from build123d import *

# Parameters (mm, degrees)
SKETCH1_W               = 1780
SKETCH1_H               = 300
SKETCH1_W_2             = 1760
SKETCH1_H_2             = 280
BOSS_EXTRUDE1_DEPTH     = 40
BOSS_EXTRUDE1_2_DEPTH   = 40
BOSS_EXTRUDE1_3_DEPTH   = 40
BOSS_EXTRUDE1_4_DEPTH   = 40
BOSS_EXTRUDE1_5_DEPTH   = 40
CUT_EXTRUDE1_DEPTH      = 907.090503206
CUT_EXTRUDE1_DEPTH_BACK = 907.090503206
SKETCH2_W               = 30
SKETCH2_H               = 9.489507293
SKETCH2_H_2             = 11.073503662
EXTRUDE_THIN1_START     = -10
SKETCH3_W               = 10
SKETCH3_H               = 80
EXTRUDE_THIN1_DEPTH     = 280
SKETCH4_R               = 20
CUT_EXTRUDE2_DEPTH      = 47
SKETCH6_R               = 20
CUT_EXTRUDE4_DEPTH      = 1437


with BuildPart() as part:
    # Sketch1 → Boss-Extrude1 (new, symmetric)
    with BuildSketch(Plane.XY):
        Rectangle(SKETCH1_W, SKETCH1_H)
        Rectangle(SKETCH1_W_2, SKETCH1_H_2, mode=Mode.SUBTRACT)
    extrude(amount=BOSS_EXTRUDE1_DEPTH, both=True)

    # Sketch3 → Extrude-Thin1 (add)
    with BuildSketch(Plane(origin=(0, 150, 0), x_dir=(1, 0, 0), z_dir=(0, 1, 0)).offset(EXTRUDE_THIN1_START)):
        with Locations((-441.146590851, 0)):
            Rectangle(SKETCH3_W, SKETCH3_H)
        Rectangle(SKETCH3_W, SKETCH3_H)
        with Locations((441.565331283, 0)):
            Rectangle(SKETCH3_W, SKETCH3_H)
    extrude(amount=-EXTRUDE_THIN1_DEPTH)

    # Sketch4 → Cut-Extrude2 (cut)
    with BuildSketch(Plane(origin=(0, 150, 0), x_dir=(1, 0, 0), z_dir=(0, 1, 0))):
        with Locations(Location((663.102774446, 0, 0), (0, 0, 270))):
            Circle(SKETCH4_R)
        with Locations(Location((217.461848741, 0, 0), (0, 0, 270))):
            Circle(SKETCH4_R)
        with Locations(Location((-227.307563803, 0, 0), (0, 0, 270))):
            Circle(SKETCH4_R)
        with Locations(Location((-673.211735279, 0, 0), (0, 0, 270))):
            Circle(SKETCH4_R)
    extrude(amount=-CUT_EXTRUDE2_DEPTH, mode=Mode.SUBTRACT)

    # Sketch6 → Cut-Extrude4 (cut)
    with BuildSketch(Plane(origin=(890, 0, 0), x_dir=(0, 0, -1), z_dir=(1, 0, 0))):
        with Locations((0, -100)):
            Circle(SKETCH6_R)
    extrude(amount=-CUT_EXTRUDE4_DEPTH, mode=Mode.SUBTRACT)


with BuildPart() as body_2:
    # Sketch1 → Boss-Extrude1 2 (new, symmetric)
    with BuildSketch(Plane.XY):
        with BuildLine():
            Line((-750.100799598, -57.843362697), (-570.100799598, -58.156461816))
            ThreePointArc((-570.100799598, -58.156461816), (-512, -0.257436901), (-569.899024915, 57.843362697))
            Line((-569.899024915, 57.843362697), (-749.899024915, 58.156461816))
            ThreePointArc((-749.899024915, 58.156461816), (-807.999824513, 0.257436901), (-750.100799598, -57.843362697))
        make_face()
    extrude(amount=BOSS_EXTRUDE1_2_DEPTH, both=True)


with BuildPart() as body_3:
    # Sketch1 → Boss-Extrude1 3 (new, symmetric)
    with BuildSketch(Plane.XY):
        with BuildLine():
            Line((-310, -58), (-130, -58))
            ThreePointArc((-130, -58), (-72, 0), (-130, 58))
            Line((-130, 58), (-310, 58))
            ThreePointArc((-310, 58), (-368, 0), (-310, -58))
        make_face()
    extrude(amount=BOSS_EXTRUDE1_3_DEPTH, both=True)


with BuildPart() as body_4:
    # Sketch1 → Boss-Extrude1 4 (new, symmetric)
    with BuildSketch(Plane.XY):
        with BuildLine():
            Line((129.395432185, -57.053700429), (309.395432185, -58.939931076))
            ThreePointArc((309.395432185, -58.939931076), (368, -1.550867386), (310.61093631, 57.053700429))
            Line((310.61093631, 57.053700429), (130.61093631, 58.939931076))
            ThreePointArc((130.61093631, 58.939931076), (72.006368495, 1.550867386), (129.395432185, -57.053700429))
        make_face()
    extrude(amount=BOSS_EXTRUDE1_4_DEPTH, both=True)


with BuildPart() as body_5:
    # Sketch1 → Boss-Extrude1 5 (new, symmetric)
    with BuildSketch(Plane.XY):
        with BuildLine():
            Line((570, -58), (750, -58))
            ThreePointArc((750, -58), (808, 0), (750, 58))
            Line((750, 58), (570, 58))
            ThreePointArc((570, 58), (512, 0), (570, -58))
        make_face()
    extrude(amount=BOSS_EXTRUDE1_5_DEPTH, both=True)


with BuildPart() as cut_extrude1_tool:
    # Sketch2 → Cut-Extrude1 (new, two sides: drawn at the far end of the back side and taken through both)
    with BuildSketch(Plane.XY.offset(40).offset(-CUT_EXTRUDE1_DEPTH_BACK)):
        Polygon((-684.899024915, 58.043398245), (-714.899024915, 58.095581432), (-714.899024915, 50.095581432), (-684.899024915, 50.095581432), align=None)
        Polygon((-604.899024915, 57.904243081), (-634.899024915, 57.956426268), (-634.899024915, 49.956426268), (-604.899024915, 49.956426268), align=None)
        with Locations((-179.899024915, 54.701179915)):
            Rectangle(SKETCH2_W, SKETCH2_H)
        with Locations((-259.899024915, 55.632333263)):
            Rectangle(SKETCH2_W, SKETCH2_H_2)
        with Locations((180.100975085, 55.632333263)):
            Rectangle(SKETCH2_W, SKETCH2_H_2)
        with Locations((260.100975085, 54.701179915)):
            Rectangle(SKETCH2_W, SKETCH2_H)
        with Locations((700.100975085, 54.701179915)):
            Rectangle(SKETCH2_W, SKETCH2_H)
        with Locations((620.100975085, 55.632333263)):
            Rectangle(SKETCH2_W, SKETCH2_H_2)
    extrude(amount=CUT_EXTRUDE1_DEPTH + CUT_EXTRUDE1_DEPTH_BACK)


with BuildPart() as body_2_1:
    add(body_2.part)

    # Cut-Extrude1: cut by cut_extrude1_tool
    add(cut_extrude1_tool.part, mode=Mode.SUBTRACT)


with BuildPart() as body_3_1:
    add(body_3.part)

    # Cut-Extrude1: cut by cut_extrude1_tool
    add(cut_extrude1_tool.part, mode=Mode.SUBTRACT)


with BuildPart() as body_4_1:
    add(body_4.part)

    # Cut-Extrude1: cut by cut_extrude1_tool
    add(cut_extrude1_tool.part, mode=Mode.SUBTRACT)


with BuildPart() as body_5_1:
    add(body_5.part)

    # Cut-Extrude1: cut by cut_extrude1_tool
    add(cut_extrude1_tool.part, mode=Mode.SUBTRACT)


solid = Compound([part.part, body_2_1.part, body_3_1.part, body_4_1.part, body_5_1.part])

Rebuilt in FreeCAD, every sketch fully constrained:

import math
import FreeCAD as App
import Part
import Sketcher
Q = App.Units.Quantity

doc = App.newDocument("Part")
body = doc.addObject("PartDesign::Body", "Body")

# Sketch on XY plane
sketch1 = body.newObject("Sketcher::SketchObject", "Sketch")
sketch1.AttachmentSupport = (doc.getObject("XY_Plane"), [""])
sketch1.MapMode = "FlatFace"
sketch1.addGeometry([
    Part.LineSegment(App.Vector(-890, 150, 0), App.Vector(-890, -150, 0)),  # 0
    Part.LineSegment(App.Vector(-890, -150, 0), App.Vector(890, -150, 0)),  # 1
    Part.LineSegment(App.Vector(890, -150, 0), App.Vector(890, 150, 0)),  # 2
    Part.LineSegment(App.Vector(890, 150, 0), App.Vector(-890, 150, 0)),  # 3
    Part.LineSegment(App.Vector(880, -140, 0), App.Vector(-880, -140, 0)),  # 4
    Part.LineSegment(App.Vector(-880, -140, 0), App.Vector(-880, 140, 0)),  # 5
    Part.LineSegment(App.Vector(-880, 140, 0), App.Vector(880, 140, 0)),  # 6
    Part.LineSegment(App.Vector(880, 140, 0), App.Vector(880, -140, 0)),  # 7
], False)
sketch1.addConstraint([
    Sketcher.Constraint("Coincident", 0, 2, 1, 1),
    Sketcher.Constraint("Coincident", 1, 2, 2, 1),
    Sketcher.Constraint("Coincident", 2, 2, 3, 1),
    Sketcher.Constraint("Coincident", 3, 2, 0, 1),
    Sketcher.Constraint("Coincident", 4, 2, 5, 1),
    Sketcher.Constraint("Coincident", 5, 2, 6, 1),
    Sketcher.Constraint("Coincident", 6, 2, 7, 1),
    Sketcher.Constraint("Coincident", 7, 2, 4, 1),
    Sketcher.Constraint("Vertical", 0),
    Sketcher.Constraint("Horizontal", 1),
    Sketcher.Constraint("Vertical", 2),
    Sketcher.Constraint("Horizontal", 3),
    Sketcher.Constraint("Horizontal", 4),
    Sketcher.Constraint("Vertical", 5),
    Sketcher.Constraint("Horizontal", 6),
    Sketcher.Constraint("Vertical", 7),
    Sketcher.Constraint("Symmetric", 0, 2, 2, 2, -1, 1),
    Sketcher.Constraint("Symmetric", 4, 2, 6, 2, -1, 1),
    Sketcher.Constraint("DistanceX", 1, 1, 1, 2, Q("1780 mm")),
    Sketcher.Constraint("DistanceX", 4, 2, 4, 1, Q("1760 mm")),
    Sketcher.Constraint("DistanceY", 0, 2, 0, 1, Q("300 mm")),
    Sketcher.Constraint("DistanceY", 5, 1, 5, 2, Q("280 mm")),
])
pad1 = body.newObject("PartDesign::Pad", "Pad")
pad1.Profile = sketch1
pad1.Length = 80
pad1.Midplane = True

# Sketch on XZ plane
sketch2 = body.newObject("Sketcher::SketchObject", "Sketch001")
sketch2.AttachmentSupport = (doc.getObject("XZ_Plane"), [""])
sketch2.MapMode = "FlatFace"
sketch2.AttachmentOffset = App.Placement(App.Vector(0, 0, -140), App.Rotation())
sketch2.addGeometry([
    Part.LineSegment(App.Vector(-446, -40, 0), App.Vector(-446, 40, 0)),  # 0
    Part.LineSegment(App.Vector(-446, 40, 0), App.Vector(-436, 40, 0)),  # 1
    Part.LineSegment(App.Vector(-436, 40, 0), App.Vector(-436, -40, 0)),  # 2
    Part.LineSegment(App.Vector(-436, -40, 0), App.Vector(-446, -40, 0)),  # 3
    Part.LineSegment(App.Vector(-5, -40, 0), App.Vector(-5, 40, 0)),  # 4
    Part.LineSegment(App.Vector(-5, 40, 0), App.Vector(5, 40, 0)),  # 5
    Part.LineSegment(App.Vector(5, 40, 0), App.Vector(5, -40, 0)),  # 6
    Part.LineSegment(App.Vector(5, -40, 0), App.Vector(-5, -40, 0)),  # 7
    Part.LineSegment(App.Vector(437, -40, 0), App.Vector(437, 40, 0)),  # 8
    Part.LineSegment(App.Vector(437, 40, 0), App.Vector(447, 40, 0)),  # 9
    Part.LineSegment(App.Vector(447, 40, 0), App.Vector(447, -40, 0)),  # 10
    Part.LineSegment(App.Vector(447, -40, 0), App.Vector(437, -40, 0)),  # 11
], False)
sketch2.addConstraint([
    Sketcher.Constraint("Coincident", 0, 2, 1, 1),
    Sketcher.Constraint("Coincident", 1, 2, 2, 1),
    Sketcher.Constraint("Coincident", 2, 2, 3, 1),
    Sketcher.Constraint("Coincident", 3, 2, 0, 1),
    Sketcher.Constraint("Coincident", 4, 2, 5, 1),
    Sketcher.Constraint("Coincident", 5, 2, 6, 1),
    Sketcher.Constraint("Coincident", 6, 2, 7, 1),
    Sketcher.Constraint("Coincident", 7, 2, 4, 1),
    Sketcher.Constraint("Coincident", 8, 2, 9, 1),
    Sketcher.Constraint("Coincident", 9, 2, 10, 1),
    Sketcher.Constraint("Coincident", 10, 2, 11, 1),
    Sketcher.Constraint("Coincident", 11, 2, 8, 1),
    Sketcher.Constraint("Vertical", 0),
    Sketcher.Constraint("Horizontal", 1),
    Sketcher.Constraint("Vertical", 2),
    Sketcher.Constraint("Horizontal", 3),
    Sketcher.Constraint("Vertical", 4),
    Sketcher.Constraint("Horizontal", 5),
    Sketcher.Constraint("Vertical", 6),
    Sketcher.Constraint("Horizontal", 7),
    Sketcher.Constraint("Vertical", 8),
    Sketcher.Constraint("Horizontal", 9),
    Sketcher.Constraint("Vertical", 10),
    Sketcher.Constraint("Horizontal", 11),
    Sketcher.Constraint("Symmetric", 4, 2, 6, 2, -1, 1),
    Sketcher.Constraint("Horizontal", 1, 2, 4, 2),
    Sketcher.Constraint("Horizontal", 3, 2, 6, 2),
    Sketcher.Constraint("Horizontal", 5, 2, 8, 2),
    Sketcher.Constraint("Horizontal", 7, 2, 10, 2),
    Sketcher.Constraint("Equal", 3, 5),
    Sketcher.Constraint("Equal", 7, 9),
    Sketcher.Constraint("DistanceX", 1, 1, 1, 2, Q("10 mm")),
    Sketcher.Constraint("DistanceY", 0, 1, 0, 2, Q("80 mm")),
    Sketcher.Constraint("DistanceX", 0, 2, -1, 1, Q("446.146591 mm")),
    Sketcher.Constraint("DistanceX", -1, 1, 8, 2, Q("436.565331 mm")),
])
pad2 = body.newObject("PartDesign::Pad", "Pad001")
pad2.Profile = sketch2
pad2.Length = 280

# Sketch on XZ plane
sketch3 = body.newObject("Sketcher::SketchObject", "Sketch002")
sketch3.AttachmentSupport = (doc.getObject("XZ_Plane"), [""])
sketch3.MapMode = "FlatFace"
sketch3.AttachmentOffset = App.Placement(App.Vector(0, 0, -150), App.Rotation())
sketch3.addGeometry([
    Part.Circle(App.Vector(663, 0, 0), App.Vector(0, 0, 1), 20),
    Part.Circle(App.Vector(217, 0, 0), App.Vector(0, 0, 1), 20),
    Part.Circle(App.Vector(-227, 0, 0), App.Vector(0, 0, 1), 20),
    Part.Circle(App.Vector(-673, 0, 0), App.Vector(0, 0, 1), 20),
], False)
sketch3.addConstraint([
    Sketcher.Constraint("Equal", 0, 1),
    Sketcher.Constraint("Equal", 1, 2),
    Sketcher.Constraint("Equal", 2, 3),
    Sketcher.Constraint("PointOnObject", 0, 3, -1),
    Sketcher.Constraint("PointOnObject", 1, 3, -1),
    Sketcher.Constraint("PointOnObject", 2, 3, -1),
    Sketcher.Constraint("PointOnObject", 3, 3, -1),
    Sketcher.Constraint("Diameter", 0, Q("40 mm")),
    Sketcher.Constraint("DistanceX", -1, 1, 1, 3, Q("217.461849 mm")),
    Sketcher.Constraint("DistanceX", 2, 3, 0, 3, Q("890.410338 mm")),
    Sketcher.Constraint("DistanceX", 3, 3, 2, 3, Q("445.904171 mm")),
    Sketcher.Constraint("DistanceX", -1, 1, 0, 3, Q("663.102774 mm")),
])
pocket1 = body.newObject("PartDesign::Pocket", "Pocket")
pocket1.Profile = sketch3
pocket1.Length = 47
pocket1.Reversed = True

# Sketch on YZ plane
sketch4 = body.newObject("Sketcher::SketchObject", "Sketch003")
sketch4.AttachmentSupport = (doc.getObject("YZ_Plane"), [""])
sketch4.MapMode = "FlatFace"
sketch4.AttachmentOffset = App.Placement(App.Vector(0, 0, 890), App.Rotation())
sketch4.addGeometry(Part.Circle(App.Vector(-100, 0, 0), App.Vector(0, 0, 1), 20), False)
sketch4.addConstraint([
    Sketcher.Constraint("PointOnObject", 0, 3, -1),
    Sketcher.Constraint("Diameter", 0, Q("40 mm")),
    Sketcher.Constraint("DistanceX", 0, 3, -1, 1, Q("100 mm")),
])
pocket2 = body.newObject("PartDesign::Pocket", "Pocket001")
pocket2.Profile = sketch4
pocket2.Length = 1437
body2 = doc.addObject("PartDesign::Body", "Body001")

# Sketch on XY plane
sketch5 = body2.newObject("Sketcher::SketchObject", "Sketch004")
sketch5.AttachmentSupport = (doc.getObject("XY_Plane001"), [""])
sketch5.MapMode = "FlatFace"
sketch5.addGeometry([
    Part.LineSegment(App.Vector(-750, -58, 0), App.Vector(-570, -58, 0)),
    Part.ArcOfCircle(Part.Circle(App.Vector(-570, 0, 0), App.Vector(0, 0, 1), 58), math.radians(-90), math.radians(90)),
    Part.LineSegment(App.Vector(-570, 58, 0), App.Vector(-750, 58, 0)),
    Part.ArcOfCircle(Part.Circle(App.Vector(-750, 0, 0), App.Vector(0, 0, 1), 58), math.radians(90), math.radians(270)),
], False)
sketch5.addConstraint([
    Sketcher.Constraint("Tangent", 0, 2, 1, 1),
    Sketcher.Constraint("Tangent", 1, 2, 2, 1),
    Sketcher.Constraint("Tangent", 2, 2, 3, 1),
    Sketcher.Constraint("Tangent", 3, 2, 0, 1),
    Sketcher.Constraint("Equal", 1, 3),
    Sketcher.Constraint("Radius", 1, Q("58 mm")),
    Sketcher.Constraint("DistanceX", 3, 3, 1, 3, Q("180 mm")),
    Sketcher.Constraint("DistanceX", 0, 2, -1, 1, Q("570.1008 mm")),
    Sketcher.Constraint("DistanceY", 1, 3, 3, 3, Q("0.313099 mm")),
    Sketcher.Constraint("DistanceY", 1, 3, -1, 1, Q("0.15655 mm")),
])
pad3 = body2.newObject("PartDesign::Pad", "Pad002")
pad3.Profile = sketch5
pad3.Length = 80
pad3.Midplane = True
body3 = doc.addObject("PartDesign::Body", "Body002")

# Sketch on XY plane
sketch6 = body3.newObject("Sketcher::SketchObject", "Sketch005")
sketch6.AttachmentSupport = (doc.getObject("XY_Plane002"), [""])
sketch6.MapMode = "FlatFace"
sketch6.addGeometry([
    Part.LineSegment(App.Vector(-310, -58, 0), App.Vector(-130, -58, 0)),
    Part.ArcOfCircle(Part.Circle(App.Vector(-130, 0, 0), App.Vector(0, 0, 1), 58), math.radians(-90), math.radians(90)),
    Part.LineSegment(App.Vector(-130, 58, 0), App.Vector(-310, 58, 0)),
    Part.ArcOfCircle(Part.Circle(App.Vector(-310, 0, 0), App.Vector(0, 0, 1), 58), math.radians(90), math.radians(270)),
], False)
sketch6.addConstraint([
    Sketcher.Constraint("Tangent", 0, 2, 1, 1),
    Sketcher.Constraint("Tangent", 1, 2, 2, 1),
    Sketcher.Constraint("Tangent", 2, 2, 3, 1),
    Sketcher.Constraint("Tangent", 3, 2, 0, 1),
    Sketcher.Constraint("Horizontal", 0),
    Sketcher.Constraint("Horizontal", 2),
    Sketcher.Constraint("PointOnObject", 1, 3, -1),
    Sketcher.Constraint("Radius", 1, Q("58 mm")),
    Sketcher.Constraint("DistanceX", 0, 1, 0, 2, Q("180 mm")),
    Sketcher.Constraint("DistanceX", 1, 3, -1, 1, Q("130 mm")),
])
pad4 = body3.newObject("PartDesign::Pad", "Pad003")
pad4.Profile = sketch6
pad4.Length = 80
pad4.Midplane = True
body4 = doc.addObject("PartDesign::Body", "Body003")

# Sketch on XY plane
sketch7 = body4.newObject("Sketcher::SketchObject", "Sketch006")
sketch7.AttachmentSupport = (doc.getObject("XY_Plane003"), [""])
sketch7.MapMode = "FlatFace"
sketch7.addGeometry([
    Part.LineSegment(App.Vector(129, -57, 0), App.Vector(309, -59, 0)),
    Part.ArcOfCircle(Part.Circle(App.Vector(310, -1, 0), App.Vector(0, 0, 1), 58), math.radians(-91), math.radians(89)),
    Part.LineSegment(App.Vector(311, 57, 0), App.Vector(131, 59, 0)),
    Part.ArcOfCircle(Part.Circle(App.Vector(130, 1, 0), App.Vector(0, 0, 1), 58), math.radians(89), math.radians(269)),
], False)
sketch7.addConstraint([
    Sketcher.Constraint("Tangent", 0, 2, 1, 1),
    Sketcher.Constraint("Tangent", 1, 2, 2, 1),
    Sketcher.Constraint("Tangent", 2, 2, 3, 1),
    Sketcher.Constraint("Tangent", 3, 2, 0, 1),
    Sketcher.Constraint("Equal", 1, 3),
    Sketcher.Constraint("Radius", 1, Q("58 mm")),
    Sketcher.Constraint("DistanceX", 3, 3, 1, 3, Q("180 mm")),
    Sketcher.Constraint("DistanceY", -1, 1, 1, 2, Q("57.0537 mm")),
    Sketcher.Constraint("DistanceY", 3, 2, -1, 1, Q("57.0537 mm")),
    Sketcher.Constraint("DistanceX", -1, 1, 1, 3, Q("310.003184 mm")),
])
pad5 = body4.newObject("PartDesign::Pad", "Pad004")
pad5.Profile = sketch7
pad5.Length = 80
pad5.Midplane = True
body5 = doc.addObject("PartDesign::Body", "Body004")

# Sketch on XY plane
sketch8 = body5.newObject("Sketcher::SketchObject", "Sketch007")
sketch8.AttachmentSupport = (doc.getObject("XY_Plane004"), [""])
sketch8.MapMode = "FlatFace"
sketch8.addGeometry([
    Part.LineSegment(App.Vector(570, -58, 0), App.Vector(750, -58, 0)),
    Part.ArcOfCircle(Part.Circle(App.Vector(750, 0, 0), App.Vector(0, 0, 1), 58), math.radians(-90), math.radians(90)),
    Part.LineSegment(App.Vector(750, 58, 0), App.Vector(570, 58, 0)),
    Part.ArcOfCircle(Part.Circle(App.Vector(570, 0, 0), App.Vector(0, 0, 1), 58), math.radians(90), math.radians(270)),
], False)
sketch8.addConstraint([
    Sketcher.Constraint("Tangent", 0, 2, 1, 1),
    Sketcher.Constraint("Tangent", 1, 2, 2, 1),
    Sketcher.Constraint("Tangent", 2, 2, 3, 1),
    Sketcher.Constraint("Tangent", 3, 2, 0, 1),
    Sketcher.Constraint("Horizontal", 0),
    Sketcher.Constraint("Horizontal", 2),
    Sketcher.Constraint("PointOnObject", 1, 3, -1),
    Sketcher.Constraint("Radius", 1, Q("58 mm")),
    Sketcher.Constraint("DistanceX", 0, 1, 0, 2, Q("180 mm")),
    Sketcher.Constraint("DistanceX", -1, 1, 1, 3, Q("750 mm")),
])
pad6 = body5.newObject("PartDesign::Pad", "Pad005")
pad6.Profile = sketch8
pad6.Length = 80
pad6.Midplane = True
body6 = doc.addObject("PartDesign::Body", "Body005")
body6.AllowCompound = True

# Sketch on XY plane
sketch9 = body6.newObject("Sketcher::SketchObject", "Sketch008")
sketch9.AttachmentSupport = (doc.getObject("XY_Plane005"), [""])
sketch9.MapMode = "FlatFace"
sketch9.AttachmentOffset = App.Placement(App.Vector(0, 0, 40), App.Rotation())
sketch9.addGeometry([
    Part.LineSegment(App.Vector(-685, 58, 0), App.Vector(-715, 58, 0)),  # 0
    Part.LineSegment(App.Vector(-715, 58, 0), App.Vector(-715, 50, 0)),  # 1
    Part.LineSegment(App.Vector(-715, 50, 0), App.Vector(-685, 50, 0)),  # 2
    Part.LineSegment(App.Vector(-685, 50, 0), App.Vector(-685, 58, 0)),  # 3
    Part.LineSegment(App.Vector(-605, 58, 0), App.Vector(-635, 58, 0)),  # 4
    Part.LineSegment(App.Vector(-635, 58, 0), App.Vector(-635, 50, 0)),  # 5
    Part.LineSegment(App.Vector(-635, 50, 0), App.Vector(-605, 50, 0)),  # 6
    Part.LineSegment(App.Vector(-605, 50, 0), App.Vector(-605, 58, 0)),  # 7
    Part.LineSegment(App.Vector(-195, 59, 0), App.Vector(-195, 50, 0)),  # 8
    Part.LineSegment(App.Vector(-195, 50, 0), App.Vector(-165, 50, 0)),  # 9
    Part.LineSegment(App.Vector(-165, 50, 0), App.Vector(-165, 59, 0)),  # 10
    Part.LineSegment(App.Vector(-165, 59, 0), App.Vector(-195, 59, 0)),  # 11
    Part.LineSegment(App.Vector(-275, 61, 0), App.Vector(-275, 50, 0)),  # 12
    Part.LineSegment(App.Vector(-275, 50, 0), App.Vector(-245, 50, 0)),  # 13
    Part.LineSegment(App.Vector(-245, 50, 0), App.Vector(-245, 61, 0)),  # 14
    Part.LineSegment(App.Vector(-245, 61, 0), App.Vector(-275, 61, 0)),  # 15
    Part.LineSegment(App.Vector(165, 61, 0), App.Vector(165, 50, 0)),  # 16
    Part.LineSegment(App.Vector(165, 50, 0), App.Vector(195, 50, 0)),  # 17
    Part.LineSegment(App.Vector(195, 50, 0), App.Vector(195, 61, 0)),  # 18
    Part.LineSegment(App.Vector(195, 61, 0), App.Vector(165, 61, 0)),  # 19
    Part.LineSegment(App.Vector(245, 59, 0), App.Vector(245, 50, 0)),  # 20
    Part.LineSegment(App.Vector(245, 50, 0), App.Vector(275, 50, 0)),  # 21
    Part.LineSegment(App.Vector(275, 50, 0), App.Vector(275, 59, 0)),  # 22
    Part.LineSegment(App.Vector(275, 59, 0), App.Vector(245, 59, 0)),  # 23
    Part.LineSegment(App.Vector(685, 59, 0), App.Vector(685, 50, 0)),  # 24
    Part.LineSegment(App.Vector(685, 50, 0), App.Vector(715, 50, 0)),  # 25
    Part.LineSegment(App.Vector(715, 50, 0), App.Vector(715, 59, 0)),  # 26
    Part.LineSegment(App.Vector(715, 59, 0), App.Vector(685, 59, 0)),  # 27
    Part.LineSegment(App.Vector(605, 61, 0), App.Vector(605, 50, 0)),  # 28
    Part.LineSegment(App.Vector(605, 50, 0), App.Vector(635, 50, 0)),  # 29
    Part.LineSegment(App.Vector(635, 50, 0), App.Vector(635, 61, 0)),  # 30
    Part.LineSegment(App.Vector(635, 61, 0), App.Vector(605, 61, 0)),  # 31
], False)
sketch9.addConstraint([
    Sketcher.Constraint("Coincident", 0, 2, 1, 1),
    Sketcher.Constraint("Coincident", 1, 2, 2, 1),
    Sketcher.Constraint("Coincident", 2, 2, 3, 1),
    Sketcher.Constraint("Coincident", 3, 2, 0, 1),
    Sketcher.Constraint("Coincident", 4, 2, 5, 1),
    Sketcher.Constraint("Coincident", 5, 2, 6, 1),
    Sketcher.Constraint("Coincident", 6, 2, 7, 1),
    Sketcher.Constraint("Coincident", 7, 2, 4, 1),
    Sketcher.Constraint("Coincident", 8, 2, 9, 1),
    Sketcher.Constraint("Coincident", 9, 2, 10, 1),
    Sketcher.Constraint("Coincident", 10, 2, 11, 1),
    Sketcher.Constraint("Coincident", 11, 2, 8, 1),
    Sketcher.Constraint("Coincident", 12, 2, 13, 1),
    Sketcher.Constraint("Coincident", 13, 2, 14, 1),
    Sketcher.Constraint("Coincident", 14, 2, 15, 1),
    Sketcher.Constraint("Coincident", 15, 2, 12, 1),
    Sketcher.Constraint("Coincident", 16, 2, 17, 1),
    Sketcher.Constraint("Coincident", 17, 2, 18, 1),
    Sketcher.Constraint("Coincident", 18, 2, 19, 1),
    Sketcher.Constraint("Coincident", 19, 2, 16, 1),
    Sketcher.Constraint("Coincident", 20, 2, 21, 1),
    Sketcher.Constraint("Coincident", 21, 2, 22, 1),
    Sketcher.Constraint("Coincident", 22, 2, 23, 1),
    Sketcher.Constraint("Coincident", 23, 2, 20, 1),
    Sketcher.Constraint("Coincident", 24, 2, 25, 1),
    Sketcher.Constraint("Coincident", 25, 2, 26, 1),
    Sketcher.Constraint("Coincident", 26, 2, 27, 1),
    Sketcher.Constraint("Coincident", 27, 2, 24, 1),
    Sketcher.Constraint("Coincident", 28, 2, 29, 1),
    Sketcher.Constraint("Coincident", 29, 2, 30, 1),
    Sketcher.Constraint("Coincident", 30, 2, 31, 1),
    Sketcher.Constraint("Coincident", 31, 2, 28, 1),
    Sketcher.Constraint("Vertical", 1),
    Sketcher.Constraint("Horizontal", 2),
    Sketcher.Constraint("Vertical", 3),
    Sketcher.Constraint("Vertical", 5),
    Sketcher.Constraint("Horizontal", 6),
    Sketcher.Constraint("Vertical", 7),
    Sketcher.Constraint("Vertical", 8),
    Sketcher.Constraint("Horizontal", 9),
    Sketcher.Constraint("Vertical", 10),
    Sketcher.Constraint("Horizontal", 11),
    Sketcher.Constraint("Vertical", 12),
    Sketcher.Constraint("Horizontal", 13),
    Sketcher.Constraint("Vertical", 14),
    Sketcher.Constraint("Horizontal", 15),
    Sketcher.Constraint("Vertical", 16),
    Sketcher.Constraint("Horizontal", 17),
    Sketcher.Constraint("Vertical", 18),
    Sketcher.Constraint("Horizontal", 19),
    Sketcher.Constraint("Vertical", 20),
    Sketcher.Constraint("Horizontal", 21),
    Sketcher.Constraint("Vertical", 22),
    Sketcher.Constraint("Horizontal", 23),
    Sketcher.Constraint("Vertical", 24),
    Sketcher.Constraint("Horizontal", 25),
    Sketcher.Constraint("Vertical", 26),
    Sketcher.Constraint("Horizontal", 27),
    Sketcher.Constraint("Vertical", 28),
    Sketcher.Constraint("Horizontal", 29),
    Sketcher.Constraint("Vertical", 30),
    Sketcher.Constraint("Horizontal", 31),
    Sketcher.Constraint("Parallel", 0, 4),
    Sketcher.Constraint("Horizontal", 6, 2, 8, 2),
    Sketcher.Constraint("Horizontal", 2, 2, 12, 2),
    Sketcher.Constraint("Horizontal", 13, 2, 16, 2),
    Sketcher.Constraint("Horizontal", 15, 2, 18, 2),
    Sketcher.Constraint("Horizontal", 9, 2, 20, 2),
    Sketcher.Constraint("Horizontal", 11, 2, 22, 2),
    Sketcher.Constraint("Horizontal", 21, 2, 24, 2),
    Sketcher.Constraint("Horizontal", 23, 2, 26, 2),
    Sketcher.Constraint("Horizontal", 17, 2, 28, 2),
    Sketcher.Constraint("Horizontal", 19, 2, 30, 2),
    Sketcher.Constraint("Equal", 2, 6),
    Sketcher.Constraint("Equal", 6, 9),
    Sketcher.Constraint("Equal", 11, 13),
    Sketcher.Constraint("Equal", 15, 17),
    Sketcher.Constraint("Equal", 19, 21),
    Sketcher.Constraint("Equal", 23, 25),
    Sketcher.Constraint("Equal", 27, 29),
    Sketcher.Constraint("Equal", 1, 5),
    Sketcher.Constraint("DistanceX", 2, 1, 2, 2, Q("30 mm")),
    Sketcher.Constraint("DistanceY", 1, 2, 1, 1, Q("8 mm")),
    Sketcher.Constraint("DistanceX", 3, 2, 4, 2, Q("50 mm")),
    Sketcher.Constraint("DistanceX", 6, 2, 8, 2, Q("410 mm")),
    Sketcher.Constraint("DistanceX", 12, 2, 8, 2, Q("80 mm")),
    Sketcher.Constraint("DistanceX", 9, 2, 16, 2, Q("330 mm")),
    Sketcher.Constraint("DistanceX", 17, 2, 20, 2, Q("50 mm")),
    Sketcher.Constraint("DistanceX", 21, 2, 24, 2, Q("410 mm")),
    Sketcher.Constraint("DistanceX", 28, 2, 24, 2, Q("80 mm")),
    Sketcher.Constraint("DistanceY", -1, 1, 3, 2, Q("58.043398 mm")),
    Sketcher.Constraint("DistanceY", 3, 1, 3, 2, Q("7.947817 mm")),
    Sketcher.Constraint("DistanceY", 8, 2, 8, 1, Q("9.489507 mm")),
    Sketcher.Constraint("DistanceY", 12, 2, 12, 1, Q("11.073504 mm")),
    Sketcher.Constraint("DistanceY", 4, 2, 3, 2, Q("0.086972 mm")),
    Sketcher.Constraint("DistanceX", 0, 2, -1, 1, Q("714.899025 mm")),
])
pad7 = body6.newObject("PartDesign::Pad", "Pad006")
pad7.Profile = sketch9
pad7.Type = "TwoLengths"
pad7.Length = 907.090503
pad7.Length2 = 907.090503
doc.recompute()

body7 = doc.addObject("PartDesign::Body", "Body006")
body7.BaseFeature = body6
boolean = body2.newObject("PartDesign::Boolean", "Boolean")
boolean.Type = "Cut"
boolean.addObjects([body7])
doc.recompute()

body8 = doc.addObject("PartDesign::Body", "Body007")
body8.BaseFeature = body6
boolean2 = body3.newObject("PartDesign::Boolean", "Boolean001")
boolean2.Type = "Cut"
boolean2.addObjects([body8])
doc.recompute()

body9 = doc.addObject("PartDesign::Body", "Body008")
body9.BaseFeature = body6
boolean3 = body4.newObject("PartDesign::Boolean", "Boolean002")
boolean3.Type = "Cut"
boolean3.addObjects([body9])
doc.recompute()

boolean4 = body5.newObject("PartDesign::Boolean", "Boolean003")
boolean4.Type = "Cut"
boolean4.addObjects([body6])

doc.recompute()
